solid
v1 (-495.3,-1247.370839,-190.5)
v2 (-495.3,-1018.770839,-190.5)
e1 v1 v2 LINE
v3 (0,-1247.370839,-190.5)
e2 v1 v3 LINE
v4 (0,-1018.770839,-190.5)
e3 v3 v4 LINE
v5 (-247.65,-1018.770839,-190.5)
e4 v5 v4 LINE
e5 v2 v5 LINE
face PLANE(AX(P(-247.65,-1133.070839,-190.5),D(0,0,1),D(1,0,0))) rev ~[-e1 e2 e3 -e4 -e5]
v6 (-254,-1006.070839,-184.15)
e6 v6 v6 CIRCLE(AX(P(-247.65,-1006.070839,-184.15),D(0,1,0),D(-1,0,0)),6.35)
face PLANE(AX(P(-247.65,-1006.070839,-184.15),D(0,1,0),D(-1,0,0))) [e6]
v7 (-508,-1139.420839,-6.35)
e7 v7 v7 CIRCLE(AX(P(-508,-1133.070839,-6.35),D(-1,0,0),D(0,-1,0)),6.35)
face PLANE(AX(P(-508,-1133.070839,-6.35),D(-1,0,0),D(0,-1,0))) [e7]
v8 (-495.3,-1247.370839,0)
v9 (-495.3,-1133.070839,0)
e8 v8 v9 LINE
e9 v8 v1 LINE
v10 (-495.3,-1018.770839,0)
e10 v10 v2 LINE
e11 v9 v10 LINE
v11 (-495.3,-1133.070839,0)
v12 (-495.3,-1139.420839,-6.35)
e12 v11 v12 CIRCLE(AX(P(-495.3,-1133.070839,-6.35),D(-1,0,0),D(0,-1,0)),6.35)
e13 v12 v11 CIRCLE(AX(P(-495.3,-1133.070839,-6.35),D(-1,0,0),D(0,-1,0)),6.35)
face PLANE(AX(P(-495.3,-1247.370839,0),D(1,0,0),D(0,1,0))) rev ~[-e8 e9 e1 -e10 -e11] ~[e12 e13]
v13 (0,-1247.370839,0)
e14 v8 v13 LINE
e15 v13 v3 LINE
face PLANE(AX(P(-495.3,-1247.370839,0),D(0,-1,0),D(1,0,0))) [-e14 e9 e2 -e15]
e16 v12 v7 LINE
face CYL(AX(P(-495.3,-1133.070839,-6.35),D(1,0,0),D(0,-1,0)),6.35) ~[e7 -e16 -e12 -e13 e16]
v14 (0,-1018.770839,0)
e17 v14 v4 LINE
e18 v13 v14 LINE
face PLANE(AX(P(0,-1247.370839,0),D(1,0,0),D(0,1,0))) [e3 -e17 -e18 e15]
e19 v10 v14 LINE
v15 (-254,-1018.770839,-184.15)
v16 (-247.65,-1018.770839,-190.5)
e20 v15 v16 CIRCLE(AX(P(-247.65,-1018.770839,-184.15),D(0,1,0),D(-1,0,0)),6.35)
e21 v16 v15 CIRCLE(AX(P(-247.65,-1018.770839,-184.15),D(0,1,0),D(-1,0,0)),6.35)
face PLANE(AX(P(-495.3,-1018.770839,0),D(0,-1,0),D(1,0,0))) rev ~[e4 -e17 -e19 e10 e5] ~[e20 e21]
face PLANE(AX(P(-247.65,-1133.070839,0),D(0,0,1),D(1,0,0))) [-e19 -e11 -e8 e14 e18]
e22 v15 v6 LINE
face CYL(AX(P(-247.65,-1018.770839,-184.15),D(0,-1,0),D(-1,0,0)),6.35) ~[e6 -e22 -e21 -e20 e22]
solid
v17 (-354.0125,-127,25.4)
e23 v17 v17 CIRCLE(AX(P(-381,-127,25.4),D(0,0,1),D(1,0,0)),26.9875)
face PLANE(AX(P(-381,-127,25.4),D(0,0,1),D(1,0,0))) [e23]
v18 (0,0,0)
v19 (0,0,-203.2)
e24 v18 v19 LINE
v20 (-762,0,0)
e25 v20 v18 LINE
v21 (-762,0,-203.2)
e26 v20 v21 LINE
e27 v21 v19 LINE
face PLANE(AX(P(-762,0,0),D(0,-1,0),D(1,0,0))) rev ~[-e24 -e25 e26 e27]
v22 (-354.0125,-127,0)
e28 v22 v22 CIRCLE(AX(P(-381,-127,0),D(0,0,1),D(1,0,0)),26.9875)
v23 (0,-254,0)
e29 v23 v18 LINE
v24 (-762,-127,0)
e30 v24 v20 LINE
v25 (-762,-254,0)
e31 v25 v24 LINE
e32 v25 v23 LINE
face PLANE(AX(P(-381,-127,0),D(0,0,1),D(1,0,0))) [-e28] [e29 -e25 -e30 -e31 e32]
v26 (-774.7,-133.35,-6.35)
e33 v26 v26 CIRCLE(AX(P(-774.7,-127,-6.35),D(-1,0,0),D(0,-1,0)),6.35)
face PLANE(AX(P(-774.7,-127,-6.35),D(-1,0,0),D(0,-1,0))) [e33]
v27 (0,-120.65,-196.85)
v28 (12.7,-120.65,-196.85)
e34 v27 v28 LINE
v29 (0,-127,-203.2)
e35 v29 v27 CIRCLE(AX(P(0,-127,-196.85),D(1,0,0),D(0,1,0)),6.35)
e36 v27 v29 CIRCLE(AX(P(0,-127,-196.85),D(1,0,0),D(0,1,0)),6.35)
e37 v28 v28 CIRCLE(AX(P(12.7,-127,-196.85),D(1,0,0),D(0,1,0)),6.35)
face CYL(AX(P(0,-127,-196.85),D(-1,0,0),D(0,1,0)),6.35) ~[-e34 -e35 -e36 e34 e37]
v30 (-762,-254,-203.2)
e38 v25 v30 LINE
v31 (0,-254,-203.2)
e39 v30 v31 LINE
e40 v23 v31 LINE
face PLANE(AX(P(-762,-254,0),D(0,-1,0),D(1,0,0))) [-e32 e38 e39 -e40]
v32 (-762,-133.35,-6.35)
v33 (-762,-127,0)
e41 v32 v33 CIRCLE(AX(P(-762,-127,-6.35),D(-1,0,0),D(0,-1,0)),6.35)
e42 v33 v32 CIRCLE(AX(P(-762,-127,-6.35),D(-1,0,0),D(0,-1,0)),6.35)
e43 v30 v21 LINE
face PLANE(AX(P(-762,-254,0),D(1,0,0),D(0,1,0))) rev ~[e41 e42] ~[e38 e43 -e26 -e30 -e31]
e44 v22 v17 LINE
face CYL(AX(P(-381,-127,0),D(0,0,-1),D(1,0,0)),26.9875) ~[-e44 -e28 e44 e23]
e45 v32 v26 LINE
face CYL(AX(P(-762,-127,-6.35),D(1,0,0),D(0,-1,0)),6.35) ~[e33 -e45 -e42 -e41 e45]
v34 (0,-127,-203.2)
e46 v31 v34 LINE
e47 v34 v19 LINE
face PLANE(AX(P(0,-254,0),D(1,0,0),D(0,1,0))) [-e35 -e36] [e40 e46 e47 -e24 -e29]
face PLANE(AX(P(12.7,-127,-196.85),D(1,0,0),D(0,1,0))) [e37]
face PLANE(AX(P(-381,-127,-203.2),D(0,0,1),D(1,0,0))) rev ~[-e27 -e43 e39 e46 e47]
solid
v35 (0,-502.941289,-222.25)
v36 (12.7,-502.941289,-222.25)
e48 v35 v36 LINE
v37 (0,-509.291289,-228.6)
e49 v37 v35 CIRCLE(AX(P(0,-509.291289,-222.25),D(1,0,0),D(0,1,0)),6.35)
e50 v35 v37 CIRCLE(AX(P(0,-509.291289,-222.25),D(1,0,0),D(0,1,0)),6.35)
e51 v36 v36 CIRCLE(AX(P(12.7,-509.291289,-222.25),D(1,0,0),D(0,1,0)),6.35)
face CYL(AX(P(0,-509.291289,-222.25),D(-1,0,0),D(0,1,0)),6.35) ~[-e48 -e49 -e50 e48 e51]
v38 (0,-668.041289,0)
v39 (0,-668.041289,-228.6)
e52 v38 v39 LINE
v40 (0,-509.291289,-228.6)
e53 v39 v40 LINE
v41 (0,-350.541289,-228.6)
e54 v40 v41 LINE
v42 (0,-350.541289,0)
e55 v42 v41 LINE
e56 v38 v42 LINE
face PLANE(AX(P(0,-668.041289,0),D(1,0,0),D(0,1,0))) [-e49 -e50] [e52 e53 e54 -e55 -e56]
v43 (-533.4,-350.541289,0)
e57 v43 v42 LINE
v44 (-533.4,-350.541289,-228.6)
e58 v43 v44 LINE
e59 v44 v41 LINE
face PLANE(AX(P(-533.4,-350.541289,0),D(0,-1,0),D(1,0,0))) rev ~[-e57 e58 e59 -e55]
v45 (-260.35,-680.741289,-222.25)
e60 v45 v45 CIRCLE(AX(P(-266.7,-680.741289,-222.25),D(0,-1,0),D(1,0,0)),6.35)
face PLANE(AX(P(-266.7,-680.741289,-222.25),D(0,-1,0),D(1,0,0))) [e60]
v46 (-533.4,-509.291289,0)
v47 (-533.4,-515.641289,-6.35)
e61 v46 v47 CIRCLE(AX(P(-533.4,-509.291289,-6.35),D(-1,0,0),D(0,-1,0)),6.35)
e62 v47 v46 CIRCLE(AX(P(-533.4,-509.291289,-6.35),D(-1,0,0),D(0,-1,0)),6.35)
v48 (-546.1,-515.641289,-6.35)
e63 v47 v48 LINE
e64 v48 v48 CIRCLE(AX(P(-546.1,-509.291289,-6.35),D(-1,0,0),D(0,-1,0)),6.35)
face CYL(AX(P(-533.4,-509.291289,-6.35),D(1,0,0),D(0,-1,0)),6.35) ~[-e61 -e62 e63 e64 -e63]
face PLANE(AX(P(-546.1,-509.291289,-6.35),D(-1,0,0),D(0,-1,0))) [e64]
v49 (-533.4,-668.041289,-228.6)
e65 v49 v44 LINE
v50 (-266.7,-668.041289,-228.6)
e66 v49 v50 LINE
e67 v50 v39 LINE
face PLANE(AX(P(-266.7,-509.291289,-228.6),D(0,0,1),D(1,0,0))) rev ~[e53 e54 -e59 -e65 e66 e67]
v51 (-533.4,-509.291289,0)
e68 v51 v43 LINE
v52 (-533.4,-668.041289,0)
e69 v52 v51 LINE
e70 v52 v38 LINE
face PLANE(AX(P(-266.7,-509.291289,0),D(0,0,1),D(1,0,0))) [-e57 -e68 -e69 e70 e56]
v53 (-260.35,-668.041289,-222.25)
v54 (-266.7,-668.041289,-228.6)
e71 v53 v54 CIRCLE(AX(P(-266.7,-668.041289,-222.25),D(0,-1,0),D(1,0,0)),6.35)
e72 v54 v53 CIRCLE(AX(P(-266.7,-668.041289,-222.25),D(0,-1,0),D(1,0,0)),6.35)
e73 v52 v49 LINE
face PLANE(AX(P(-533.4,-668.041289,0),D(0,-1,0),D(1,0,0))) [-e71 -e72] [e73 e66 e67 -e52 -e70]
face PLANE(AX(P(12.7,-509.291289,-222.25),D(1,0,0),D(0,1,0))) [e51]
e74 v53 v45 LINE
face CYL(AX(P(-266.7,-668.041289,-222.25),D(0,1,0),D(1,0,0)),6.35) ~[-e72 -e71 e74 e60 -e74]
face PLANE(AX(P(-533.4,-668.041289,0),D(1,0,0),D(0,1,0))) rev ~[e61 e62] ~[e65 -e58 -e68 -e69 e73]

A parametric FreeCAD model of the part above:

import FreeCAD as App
import Part
import Sketcher

V = App.Vector
Q = App.Units.Quantity

doc = App.newDocument("Part")
body = doc.addObject("PartDesign::Body", "Body")

sketch1 = body.newObject("Sketcher::SketchObject", "Sketch")
sketch1.AttachmentSupport = (doc.getObject("XY_Plane"), [""])
sketch1.MapMode = "FlatFace"
sketch1.addGeometry(Part.LineSegment(V(-762, 0, 0), V(-762, -254, 0)), False)
sketch1.addGeometry(Part.LineSegment(V(-762, -254, 0), V(0, -254, 0)), False)
sketch1.addGeometry(Part.LineSegment(V(0, -254, 0), V(0, 0, 0)), False)
sketch1.addGeometry(Part.LineSegment(V(0, 0, 0), V(-762, 0, 0)), False)
sketch1.addConstraint(Sketcher.Constraint("Coincident", 0, 2, 1, 1))
sketch1.addConstraint(Sketcher.Constraint("Coincident", 1, 2, 2, 1))
sketch1.addConstraint(Sketcher.Constraint("Coincident", 2, 2, 3, 1))
sketch1.addConstraint(Sketcher.Constraint("Coincident", 3, 2, 0, 1))
sketch1.addConstraint(Sketcher.Constraint("Vertical", 0))
sketch1.addConstraint(Sketcher.Constraint("Horizontal", 1))
sketch1.addConstraint(Sketcher.Constraint("Vertical", 2))
sketch1.addConstraint(Sketcher.Constraint("Horizontal", 3))
sketch1.addConstraint(Sketcher.Constraint("Coincident", 2, 2, -1, 1))
sketch1.addConstraint(Sketcher.Constraint("DistanceX", 1, 1, 1, 2, Q("30 in")))
sketch1.addConstraint(Sketcher.Constraint("DistanceY", 0, 2, 0, 1, Q("10 in")))
pad1 = body.newObject("PartDesign::Pad", "Pad")
pad1.Profile = sketch1
pad1.Length = Q("8 in")
pad1.Reversed = True

sketch2 = body.newObject("Sketcher::SketchObject", "Sketch001")
sketch2.AttachmentSupport = (doc.getObject("YZ_Plane"), [""])
sketch2.MapMode = "FlatFace"
sketch2.AttachmentOffset = App.Placement(V(0, 0, -30 * 25.4), App.Rotation())
sketch2.addGeometry(Part.Circle(V(-127, -6, 0), V(0, 0, 1), 6), False)
sketch2.addConstraint(Sketcher.Constraint("Diameter", 0, Q("0.5 in")))
sketch2.addConstraint(Sketcher.Constraint("DistanceX", 0, 3, -1, 1, Q("5 in")))
sketch2.addConstraint(Sketcher.Constraint("DistanceY", 0, 3, -1, 1, Q("0.25 in")))
pad2 = body.newObject("PartDesign::Pad", "Pad001")
pad2.Profile = sketch2
pad2.Length = Q("0.5 in")
pad2.Reversed = True

sketch3 = body.newObject("Sketcher::SketchObject", "Sketch002")
sketch3.AttachmentSupport = (doc.getObject("YZ_Plane"), [""])
sketch3.MapMode = "FlatFace"
sketch3.addGeometry(Part.Circle(V(-127, -197, 0), V(0, 0, 1), 6), False)
sketch3.addConstraint(Sketcher.Constraint("Diameter", 0, Q("0.5 in")))
sketch3.addConstraint(Sketcher.Constraint("DistanceX", 0, 3, -1, 1, Q("5 in")))
sketch3.addConstraint(Sketcher.Constraint("DistanceY", 0, 3, -1, 1, Q("7.75 in")))
pad3 = body.newObject("PartDesign::Pad", "Pad002")
pad3.Profile = sketch3
pad3.Length = Q("0.5 in")

sketch4 = body.newObject("Sketcher::SketchObject", "Sketch003")
sketch4.AttachmentSupport = (doc.getObject("XY_Plane"), [""])
sketch4.MapMode = "FlatFace"
sketch4.addGeometry(Part.Circle(V(-381, -127, 0), V(0, 0, 1), 27), False)
sketch4.addConstraint(Sketcher.Constraint("Diameter", 0, Q("2.125 in")))
sketch4.addConstraint(Sketcher.Constraint("DistanceX", 0, 3, -1, 1, Q("15 in")))
sketch4.addConstraint(Sketcher.Constraint("DistanceY", 0, 3, -1, 1, Q("5 in")))
pad4 = body.newObject("PartDesign::Pad", "Pad003")
pad4.Profile = sketch4
pad4.Length = Q("1 in")
body2 = doc.addObject("PartDesign::Body", "Body001")

sketch5 = body2.newObject("Sketcher::SketchObject", "Sketch004")
sketch5.AttachmentSupport = (doc.getObject("XY_Plane001"), [""])
sketch5.MapMode = "FlatFace"
sketch5.addGeometry(Part.LineSegment(V(-533, -351, 0), V(-533, -668, 0)), False)
sketch5.addGeometry(Part.LineSegment(V(-533, -668, 0), V(0, -668, 0)), False)
sketch5.addGeometry(Part.LineSegment(V(0, -668, 0), V(0, -351, 0)), False)
sketch5.addGeometry(Part.LineSegment(V(0, -351, 0), V(-533, -351, 0)), False)
sketch5.addConstraint(Sketcher.Constraint("Coincident", 0, 2, 1, 1))
sketch5.addConstraint(Sketcher.Constraint("Coincident", 1, 2, 2, 1))
sketch5.addConstraint(Sketcher.Constraint("Coincident", 2, 2, 3, 1))
sketch5.addConstraint(Sketcher.Constraint("Coincident", 3, 2, 0, 1))
sketch5.addConstraint(Sketcher.Constraint("Vertical", 0))
sketch5.addConstraint(Sketcher.Constraint("Horizontal", 1))
sketch5.addConstraint(Sketcher.Constraint("Vertical", 2))
sketch5.addConstraint(Sketcher.Constraint("Horizontal", 3))
sketch5.addConstraint(Sketcher.Constraint("PointOnObject", 1, 2, -2))
sketch5.addConstraint(Sketcher.Constraint("DistanceX", 1, 1, 1, 2, Q("21 in")))
sketch5.addConstraint(Sketcher.Constraint("DistanceY", 0, 2, 0, 1, Q("12.5 in")))
sketch5.addConstraint(Sketcher.Constraint("DistanceY", 0, 2, -1, 1, 668.041289))
pad5 = body2.newObject("PartDesign::Pad", "Pad004")
pad5.Profile = sketch5
pad5.Length = Q("9 in")
pad5.Reversed = True

sketch6 = body2.newObject("Sketcher::SketchObject", "Sketch005")
sketch6.AttachmentSupport = (doc.getObject("YZ_Plane001"), [""])
sketch6.MapMode = "FlatFace"
sketch6.AttachmentOffset = App.Placement(V(0, 0, -21 * 25.4), App.Rotation())
sketch6.addGeometry(Part.Circle(V(-509, -6, 0), V(0, 0, 1), 6), False)
sketch6.addConstraint(Sketcher.Constraint("Diameter", 0, Q("0.5 in")))
sketch6.addConstraint(Sketcher.Constraint("DistanceY", 0, 3, -1, 1, Q("0.25 in")))
sketch6.addConstraint(Sketcher.Constraint("DistanceX", 0, 3, -1, 1, 509.291289))
pad6 = body2.newObject("PartDesign::Pad", "Pad005")
pad6.Profile = sketch6
pad6.Length = Q("0.5 in")
pad6.Reversed = True

sketch7 = body2.newObject("Sketcher::SketchObject", "Sketch006")
sketch7.AttachmentSupport = (doc.getObject("YZ_Plane001"), [""])
sketch7.MapMode = "FlatFace"
sketch7.addGeometry(Part.Circle(V(-509, -222, 0), V(0, 0, 1), 6), False)
sketch7.addConstraint(Sketcher.Constraint("Diameter", 0, Q("0.5 in")))
sketch7.addConstraint(Sketcher.Constraint("DistanceY", 0, 3, -1, 1, Q("8.75 in")))
sketch7.addConstraint(Sketcher.Constraint("DistanceX", 0, 3, -1, 1, 509.291289))
pad7 = body2.newObject("PartDesign::Pad", "Pad006")
pad7.Profile = sketch7
pad7.Length = Q("0.5 in")

sketch8 = body2.newObject("Sketcher::SketchObject", "Sketch007")
sketch8.AttachmentSupport = (doc.getObject("XZ_Plane001"), [""])
sketch8.MapMode = "FlatFace"
sketch8.AttachmentOffset = App.Placement(V(0, 0, 668.041289), App.Rotation())
sketch8.addGeometry(Part.Circle(V(-267, -222, 0), V(0, 0, 1), 6), False)
sketch8.addConstraint(Sketcher.Constraint("Diameter", 0, Q("0.5 in")))
sketch8.addConstraint(Sketcher.Constraint("DistanceX", 0, 3, -1, 1, Q("10.5 in")))
sketch8.addConstraint(Sketcher.Constraint("DistanceY", 0, 3, -1, 1, Q("8.75 in")))
pad8 = body2.newObject("PartDesign::Pad", "Pad007")
pad8.Profile = sketch8
pad8.Length = Q("0.5 in")
body3 = doc.addObject("PartDesign::Body", "Body002")

sketch9 = body3.newObject("Sketcher::SketchObject", "Sketch008")
sketch9.AttachmentSupport = (doc.getObject("XY_Plane002"), [""])
sketch9.MapMode = "FlatFace"
sketch9.addGeometry(Part.LineSegment(V(-495, -1019, 0), V(-495, -1247, 0)), False)
sketch9.addGeometry(Part.LineSegment(V(-495, -1247, 0), V(0, -1247, 0)), False)
sketch9.addGeometry(Part.LineSegment(V(0, -1247, 0), V(0, -1019, 0)), False)
sketch9.addGeometry(Part.LineSegment(V(0, -1019, 0), V(-495, -1019, 0)), False)
sketch9.addConstraint(Sketcher.Constraint("Coincident", 0, 2, 1, 1))
sketch9.addConstraint(Sketcher.Constraint("Coincident", 1, 2, 2, 1))
sketch9.addConstraint(Sketcher.Constraint("Coincident", 2, 2, 3, 1))
sketch9.addConstraint(Sketcher.Constraint("Coincident", 3, 2, 0, 1))
sketch9.addConstraint(Sketcher.Constraint("Vertical", 0))
sketch9.addConstraint(Sketcher.Constraint("Horizontal", 1))
sketch9.addConstraint(Sketcher.Constraint("Vertical", 2))
sketch9.addConstraint(Sketcher.Constraint("Horizontal", 3))
sketch9.addConstraint(Sketcher.Constraint("PointOnObject", 1, 2, -2))
sketch9.addConstraint(Sketcher.Constraint("DistanceY", 0, 2, 0, 1, Q("9 in")))
sketch9.addConstraint(Sketcher.Constraint("DistanceX", 1, 1, 1, 2, Q("19.5 in")))
sketch9.addConstraint(Sketcher.Constraint("DistanceY", 0, 2, -1, 1, 1247.370839))
pad9 = body3.newObject("PartDesign::Pad", "Pad008")
pad9.Profile = sketch9
pad9.Length = Q("7.5 in")
pad9.Reversed = True

sketch10 = body3.newObject("Sketcher::SketchObject", "Sketch009")
sketch10.AttachmentSupport = (doc.getObject("YZ_Plane002"), [""])
sketch10.MapMode = "FlatFace"
sketch10.AttachmentOffset = App.Placement(V(0, 0, -19.5 * 25.4), App.Rotation())
sketch10.addGeometry(Part.Circle(V(-1133, -6, 0), V(0, 0, 1), 6), False)
sketch10.addConstraint(Sketcher.Constraint("Diameter", 0, Q("0.5 in")))
sketch10.addConstraint(Sketcher.Constraint("DistanceY", 0, 3, -1, 1, Q("0.25 in")))
sketch10.addConstraint(Sketcher.Constraint("DistanceX", 0, 3, -1, 1, 1133.070839))
pad10 = body3.newObject("PartDesign::Pad", "Pad009")
pad10.Profile = sketch10
pad10.Length = Q("0.5 in")
pad10.Reversed = True

sketch11 = body3.newObject("Sketcher::SketchObject", "Sketch010")
sketch11.AttachmentSupport = (doc.getObject("XZ_Plane002"), [""])
sketch11.MapMode = "FlatFace"
sketch11.AttachmentOffset = App.Placement(V(0, 0, 1018.770839), App.Rotation())
sketch11.addGeometry(Part.Circle(V(-248, -184, 0), V(0, 0, 1), 6), False)
sketch11.addConstraint(Sketcher.Constraint("Diameter", 0, Q("0.5 in")))
sketch11.addConstraint(Sketcher.Constraint("DistanceX", 0, 3, -1, 1, Q("9.75 in")))
sketch11.addConstraint(Sketcher.Constraint("DistanceY", 0, 3, -1, 1, Q("7.25 in")))
pad11 = body3.newObject("PartDesign::Pad", "Pad010")
pad11.Profile = sketch11
pad11.Length = Q("0.5 in")
pad11.Reversed = True

doc.recompute()
